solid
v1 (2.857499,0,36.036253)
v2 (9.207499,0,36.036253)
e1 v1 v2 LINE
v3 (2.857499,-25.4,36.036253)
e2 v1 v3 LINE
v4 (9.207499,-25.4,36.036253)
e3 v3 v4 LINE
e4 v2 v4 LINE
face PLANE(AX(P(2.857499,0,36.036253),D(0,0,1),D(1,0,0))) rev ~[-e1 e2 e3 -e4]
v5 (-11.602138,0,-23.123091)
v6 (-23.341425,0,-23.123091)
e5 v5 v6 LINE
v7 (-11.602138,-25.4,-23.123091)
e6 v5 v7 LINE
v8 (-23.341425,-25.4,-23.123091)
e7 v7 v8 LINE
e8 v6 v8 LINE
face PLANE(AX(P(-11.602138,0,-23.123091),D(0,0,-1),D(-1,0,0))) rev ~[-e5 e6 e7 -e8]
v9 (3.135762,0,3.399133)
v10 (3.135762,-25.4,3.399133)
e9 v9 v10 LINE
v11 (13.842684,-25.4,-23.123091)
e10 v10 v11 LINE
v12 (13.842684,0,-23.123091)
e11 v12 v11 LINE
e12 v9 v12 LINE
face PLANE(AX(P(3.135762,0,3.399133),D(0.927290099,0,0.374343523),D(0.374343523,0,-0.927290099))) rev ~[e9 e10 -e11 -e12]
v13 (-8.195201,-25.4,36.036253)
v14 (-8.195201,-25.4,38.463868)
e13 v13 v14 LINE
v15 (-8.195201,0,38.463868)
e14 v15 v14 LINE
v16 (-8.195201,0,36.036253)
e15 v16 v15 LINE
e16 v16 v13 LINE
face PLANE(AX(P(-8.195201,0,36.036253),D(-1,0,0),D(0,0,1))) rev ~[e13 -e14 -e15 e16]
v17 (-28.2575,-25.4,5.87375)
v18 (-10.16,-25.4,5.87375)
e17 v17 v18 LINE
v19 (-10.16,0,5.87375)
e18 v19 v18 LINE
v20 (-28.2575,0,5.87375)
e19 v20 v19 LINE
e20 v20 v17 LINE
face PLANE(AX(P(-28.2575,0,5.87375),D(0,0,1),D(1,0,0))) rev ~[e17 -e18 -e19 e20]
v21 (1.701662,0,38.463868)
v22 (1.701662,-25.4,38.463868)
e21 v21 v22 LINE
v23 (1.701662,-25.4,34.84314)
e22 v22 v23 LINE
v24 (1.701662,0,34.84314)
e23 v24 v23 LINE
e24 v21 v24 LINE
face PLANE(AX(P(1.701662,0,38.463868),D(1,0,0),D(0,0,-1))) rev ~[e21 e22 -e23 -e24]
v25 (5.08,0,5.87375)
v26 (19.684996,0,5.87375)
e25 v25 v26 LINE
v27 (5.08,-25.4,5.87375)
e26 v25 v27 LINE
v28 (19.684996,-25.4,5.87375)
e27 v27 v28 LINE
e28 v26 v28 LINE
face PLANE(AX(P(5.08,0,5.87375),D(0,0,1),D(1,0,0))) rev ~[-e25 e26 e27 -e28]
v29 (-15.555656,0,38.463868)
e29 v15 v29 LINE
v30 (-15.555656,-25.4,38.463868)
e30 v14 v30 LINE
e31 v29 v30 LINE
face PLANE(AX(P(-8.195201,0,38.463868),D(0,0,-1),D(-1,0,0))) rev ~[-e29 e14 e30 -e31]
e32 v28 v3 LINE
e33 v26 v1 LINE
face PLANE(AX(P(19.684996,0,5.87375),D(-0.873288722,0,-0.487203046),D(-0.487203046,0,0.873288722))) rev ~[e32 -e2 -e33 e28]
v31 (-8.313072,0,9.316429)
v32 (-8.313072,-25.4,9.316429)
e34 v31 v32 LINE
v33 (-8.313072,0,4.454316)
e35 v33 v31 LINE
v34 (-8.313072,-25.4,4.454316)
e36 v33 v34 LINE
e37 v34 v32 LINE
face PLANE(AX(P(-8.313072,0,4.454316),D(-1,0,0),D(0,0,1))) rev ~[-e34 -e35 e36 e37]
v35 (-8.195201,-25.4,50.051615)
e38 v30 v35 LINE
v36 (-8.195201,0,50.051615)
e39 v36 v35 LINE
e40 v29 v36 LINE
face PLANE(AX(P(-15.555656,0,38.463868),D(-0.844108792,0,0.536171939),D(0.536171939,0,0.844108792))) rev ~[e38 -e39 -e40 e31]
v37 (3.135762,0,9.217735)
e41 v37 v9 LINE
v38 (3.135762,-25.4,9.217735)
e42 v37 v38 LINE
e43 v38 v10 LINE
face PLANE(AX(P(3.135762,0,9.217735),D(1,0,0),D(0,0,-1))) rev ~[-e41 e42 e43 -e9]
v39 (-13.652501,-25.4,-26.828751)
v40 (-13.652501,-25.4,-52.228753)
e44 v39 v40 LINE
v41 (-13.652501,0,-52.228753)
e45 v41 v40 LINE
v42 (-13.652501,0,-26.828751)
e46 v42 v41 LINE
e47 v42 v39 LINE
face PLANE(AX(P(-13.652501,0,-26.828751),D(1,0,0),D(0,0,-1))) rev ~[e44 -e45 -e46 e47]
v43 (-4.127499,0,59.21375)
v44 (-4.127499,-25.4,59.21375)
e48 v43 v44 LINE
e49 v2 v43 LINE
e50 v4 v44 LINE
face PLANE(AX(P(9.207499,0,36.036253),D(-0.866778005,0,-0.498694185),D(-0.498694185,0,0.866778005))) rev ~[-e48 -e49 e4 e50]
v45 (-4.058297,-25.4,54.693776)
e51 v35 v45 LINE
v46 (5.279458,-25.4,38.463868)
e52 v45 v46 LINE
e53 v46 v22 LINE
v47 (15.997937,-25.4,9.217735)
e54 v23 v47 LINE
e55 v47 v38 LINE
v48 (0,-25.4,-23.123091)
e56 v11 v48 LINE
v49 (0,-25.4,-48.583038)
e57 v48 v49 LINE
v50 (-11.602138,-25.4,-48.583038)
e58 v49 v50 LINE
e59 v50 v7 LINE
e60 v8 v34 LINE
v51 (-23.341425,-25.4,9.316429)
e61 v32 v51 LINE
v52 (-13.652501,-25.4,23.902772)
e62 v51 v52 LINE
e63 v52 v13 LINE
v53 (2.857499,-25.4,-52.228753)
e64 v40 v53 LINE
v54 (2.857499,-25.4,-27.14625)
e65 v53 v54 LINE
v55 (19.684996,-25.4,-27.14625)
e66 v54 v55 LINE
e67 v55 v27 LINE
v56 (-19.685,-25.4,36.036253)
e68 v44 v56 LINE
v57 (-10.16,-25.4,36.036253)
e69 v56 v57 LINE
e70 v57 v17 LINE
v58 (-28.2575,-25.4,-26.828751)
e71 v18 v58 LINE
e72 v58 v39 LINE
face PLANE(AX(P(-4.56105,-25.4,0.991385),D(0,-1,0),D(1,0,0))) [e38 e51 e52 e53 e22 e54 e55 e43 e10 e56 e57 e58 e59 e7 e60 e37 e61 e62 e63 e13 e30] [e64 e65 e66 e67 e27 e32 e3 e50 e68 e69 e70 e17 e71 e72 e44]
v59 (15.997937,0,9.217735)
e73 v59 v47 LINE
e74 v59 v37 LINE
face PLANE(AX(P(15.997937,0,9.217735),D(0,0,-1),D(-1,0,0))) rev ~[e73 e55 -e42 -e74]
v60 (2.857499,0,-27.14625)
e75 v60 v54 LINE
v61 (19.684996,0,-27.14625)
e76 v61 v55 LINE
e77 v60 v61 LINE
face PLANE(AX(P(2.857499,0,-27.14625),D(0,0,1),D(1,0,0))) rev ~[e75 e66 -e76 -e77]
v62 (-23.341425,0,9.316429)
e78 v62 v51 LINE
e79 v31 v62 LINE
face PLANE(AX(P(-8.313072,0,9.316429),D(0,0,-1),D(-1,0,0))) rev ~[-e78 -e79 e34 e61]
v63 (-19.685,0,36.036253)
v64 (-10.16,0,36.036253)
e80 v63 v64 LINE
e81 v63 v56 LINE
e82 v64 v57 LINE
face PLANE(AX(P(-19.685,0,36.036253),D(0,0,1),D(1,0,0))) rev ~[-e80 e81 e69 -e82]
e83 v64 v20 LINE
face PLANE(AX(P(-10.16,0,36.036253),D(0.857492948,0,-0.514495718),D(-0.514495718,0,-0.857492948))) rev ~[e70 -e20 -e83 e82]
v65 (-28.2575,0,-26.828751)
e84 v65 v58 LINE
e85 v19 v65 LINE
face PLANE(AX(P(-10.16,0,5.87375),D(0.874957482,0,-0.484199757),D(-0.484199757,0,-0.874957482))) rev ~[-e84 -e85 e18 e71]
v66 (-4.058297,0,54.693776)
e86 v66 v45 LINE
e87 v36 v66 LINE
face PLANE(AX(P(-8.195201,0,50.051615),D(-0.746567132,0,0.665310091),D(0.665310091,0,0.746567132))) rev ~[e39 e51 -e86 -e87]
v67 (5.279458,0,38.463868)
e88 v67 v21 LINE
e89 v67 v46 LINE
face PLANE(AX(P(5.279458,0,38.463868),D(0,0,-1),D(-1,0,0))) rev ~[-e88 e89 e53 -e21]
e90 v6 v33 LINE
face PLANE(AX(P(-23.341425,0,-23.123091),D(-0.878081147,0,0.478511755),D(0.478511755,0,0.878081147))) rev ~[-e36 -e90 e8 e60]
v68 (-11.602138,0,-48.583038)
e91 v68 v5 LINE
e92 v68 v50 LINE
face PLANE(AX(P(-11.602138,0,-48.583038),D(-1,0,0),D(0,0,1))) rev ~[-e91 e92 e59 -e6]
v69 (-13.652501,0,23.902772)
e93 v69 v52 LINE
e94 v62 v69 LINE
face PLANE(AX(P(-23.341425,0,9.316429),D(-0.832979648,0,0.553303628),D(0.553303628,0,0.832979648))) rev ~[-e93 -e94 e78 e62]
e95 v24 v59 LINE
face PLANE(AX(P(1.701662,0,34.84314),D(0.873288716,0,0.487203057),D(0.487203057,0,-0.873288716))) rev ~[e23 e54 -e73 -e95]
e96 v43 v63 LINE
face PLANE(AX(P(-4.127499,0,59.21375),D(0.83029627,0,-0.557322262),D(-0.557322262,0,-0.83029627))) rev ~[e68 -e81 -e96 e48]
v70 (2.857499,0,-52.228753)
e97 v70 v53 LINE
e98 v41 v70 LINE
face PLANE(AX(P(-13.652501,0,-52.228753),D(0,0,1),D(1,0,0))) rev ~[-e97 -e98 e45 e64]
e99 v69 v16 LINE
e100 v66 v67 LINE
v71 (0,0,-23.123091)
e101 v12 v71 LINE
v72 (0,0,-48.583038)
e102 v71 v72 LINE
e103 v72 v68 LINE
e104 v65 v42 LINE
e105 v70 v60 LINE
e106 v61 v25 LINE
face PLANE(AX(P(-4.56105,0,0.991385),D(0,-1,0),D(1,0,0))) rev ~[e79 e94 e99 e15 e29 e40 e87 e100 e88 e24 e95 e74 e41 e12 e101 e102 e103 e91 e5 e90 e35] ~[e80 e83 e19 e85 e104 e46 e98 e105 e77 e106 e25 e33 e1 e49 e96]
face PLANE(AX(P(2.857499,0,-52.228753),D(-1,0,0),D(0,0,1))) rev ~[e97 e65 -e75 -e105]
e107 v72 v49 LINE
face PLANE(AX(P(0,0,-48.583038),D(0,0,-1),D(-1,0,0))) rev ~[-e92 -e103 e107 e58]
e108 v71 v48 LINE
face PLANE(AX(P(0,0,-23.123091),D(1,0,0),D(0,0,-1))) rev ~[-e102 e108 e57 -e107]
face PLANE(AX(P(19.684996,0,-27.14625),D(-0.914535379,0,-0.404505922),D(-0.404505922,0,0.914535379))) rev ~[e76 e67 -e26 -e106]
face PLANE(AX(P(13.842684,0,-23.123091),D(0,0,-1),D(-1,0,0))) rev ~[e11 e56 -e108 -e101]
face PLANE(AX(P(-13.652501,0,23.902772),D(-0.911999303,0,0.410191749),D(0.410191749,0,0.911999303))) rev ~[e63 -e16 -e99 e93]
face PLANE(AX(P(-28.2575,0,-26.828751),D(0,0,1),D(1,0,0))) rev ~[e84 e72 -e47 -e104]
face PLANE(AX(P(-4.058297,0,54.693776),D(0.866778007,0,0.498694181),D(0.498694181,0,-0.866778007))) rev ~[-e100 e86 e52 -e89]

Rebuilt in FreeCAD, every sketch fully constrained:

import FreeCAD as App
import Part
import Sketcher
Q = App.Units.Quantity


def add_polygon(sketch, points):
    """Adds a closed chain of lines whose ends are joined by coincident constraints."""
    first, n = sketch.GeometryCount, len(points)
    for a, b in zip(points, points[1:] + points[:1]):
        sketch.addGeometry(Part.LineSegment(App.Vector(*a, 0), App.Vector(*b, 0)), False)
    for i in range(n):
        sketch.addConstraint(Sketcher.Constraint("Coincident", first + i, 2, first + (i + 1) % n, 1))

doc = App.newDocument("Part")
body = doc.addObject("PartDesign::Body", "Body")

# Sketch on XZ plane
sketch1 = body.newObject("Sketcher::SketchObject", "Sketch")
sketch1.AttachmentSupport = (doc.getObject("XZ_Plane"), [""])
sketch1.MapMode = "FlatFace"
add_polygon(sketch1, [(-28.3, -26.8), (-13.7, -26.8), (-13.7, -52.2), (2.9, -52.2), (2.9, -27.1), (19.7, -27.1), (5.1, 5.9), (19.7, 5.9), (2.9, 36), (9.2, 36), (-4.1, 59.2), (-19.7, 36), (-10.2, 36), (-28.3, 5.9), (-10.2, 5.9)])  # lines 0-14
add_polygon(sketch1, [(-8.3, 9.3), (-23.3, 9.3), (-13.7, 23.9), (-8.2, 36), (-8.2, 38.5), (-15.6, 38.5), (-8.2, 50.1), (-4.1, 54.7), (5.3, 38.5), (1.7, 38.5), (1.7, 34.8), (16, 9.2), (3.1, 9.2), (3.1, 3.4), (13.8, -23.1), (0, -23.1), (0, -48.6), (-11.6, -48.6), (-11.6, -23.1), (-23.3, -23.1), (-8.3, 4.5)])  # lines 15-35
sketch1.addConstraint([
    Sketcher.Constraint("Horizontal", 0),
    Sketcher.Constraint("Vertical", 1),
    Sketcher.Constraint("Horizontal", 2),
    Sketcher.Constraint("Vertical", 3),
    Sketcher.Constraint("Horizontal", 4),
    Sketcher.Constraint("Horizontal", 6),
    Sketcher.Constraint("Horizontal", 8),
    Sketcher.Constraint("Horizontal", 11),
    Sketcher.Constraint("Horizontal", 13),
    Sketcher.Constraint("Horizontal", 15),
    Sketcher.Constraint("Vertical", 18),
    Sketcher.Constraint("Horizontal", 19),
    Sketcher.Constraint("Horizontal", 23),
    Sketcher.Constraint("Vertical", 24),
    Sketcher.Constraint("Horizontal", 26),
    Sketcher.Constraint("Vertical", 27),
    Sketcher.Constraint("Horizontal", 29),
    Sketcher.Constraint("Vertical", 30),
    Sketcher.Constraint("Horizontal", 31),
    Sketcher.Constraint("Vertical", 32),
    Sketcher.Constraint("Horizontal", 33),
    Sketcher.Constraint("Vertical", 35),
    Sketcher.Constraint("PointOnObject", 29, 2, -2),
    Sketcher.Constraint("Parallel", 9, 22),
    Sketcher.Constraint("Parallel", 7, 25),
    Sketcher.Constraint("Horizontal", 8, 2, 10, 2),
    Sketcher.Constraint("Horizontal", 6, 2, 12, 2),
    Sketcher.Constraint("Horizontal", 11, 2, 17, 2),
    Sketcher.Constraint("Horizontal", 19, 2, 22, 2),
    Sketcher.Constraint("Horizontal", 29, 2, 32, 2),
    Sketcher.Constraint("Vertical", 4, 2, 6, 2),
    Sketcher.Constraint("Vertical", 3, 2, 7, 2),
    Sketcher.Constraint("Vertical", 11, 2, 13, 2),
    Sketcher.Constraint("Vertical", 12, 2, 14, 2),
    Sketcher.Constraint("Vertical", 1, 2, 16, 2),
    Sketcher.Constraint("Vertical", 18, 2, 20, 2),
    Sketcher.Constraint("Vertical", 15, 2, 33, 2),
    Sketcher.Constraint("DistanceY", 1, 2, 1, 1, Q("1.0000001 in")),
    Sketcher.Constraint("DistanceX", 2, 1, 2, 2, Q("0.65 in")),
    Sketcher.Constraint("DistanceX", 8, 1, 8, 2, Q("0.25 in")),
    Sketcher.Constraint("DistanceX", -1, 1, 5, 2, Q("0.2 in")),
    Sketcher.Constraint("DistanceX", 11, 2, -1, 1, Q("0.4 in")),
    Sketcher.Constraint("DistanceY", 3, 2, 5, 2, Q("1.3 in")),
    Sketcher.Constraint("DistanceY", 5, 2, 9, 2, Q("2.1 in")),
    Sketcher.Constraint("DistanceX", 0, 1, 0, 2, Q("0.575 in")),
    Sketcher.Constraint("DistanceX", 6, 1, 6, 2, Q("0.5749998 in")),
    Sketcher.Constraint("DistanceX", 11, 1, 11, 2, Q("0.375 in")),
    Sketcher.Constraint("DistanceX", 4, 1, 4, 2, Q("0.6624999 in")),
    Sketcher.Constraint("DistanceY", 3, 1, 3, 2, Q("0.9875001 in")),
    Sketcher.Constraint("DistanceY", 5, 2, 7, 2, Q("1.1875001 in")),
    Sketcher.Constraint("DistanceX", 9, 2, 7, 2, Q("0.2749999 in")),
    Sketcher.Constraint("DistanceY", 27, 2, 27, 1, Q("5.818602 mm")),
    Sketcher.Constraint("DistanceX", 17, 2, -1, 1, Q("8.195201 mm")),
    Sketcher.Constraint("Distance", 20, Q("13.727789 mm")),
    Sketcher.Constraint("Distance", 21, Q("6.218009 mm")),
    Sketcher.Constraint("Distance", 22, Q("18.724411 mm")),
    Sketcher.Constraint("DistanceX", 15, 2, 15, 1, Q("15.028353 mm")),
    Sketcher.Constraint("DistanceX", 19, 2, 19, 1, Q("7.360455 mm")),
    Sketcher.Constraint("DistanceX", 23, 2, 23, 1, Q("3.577796 mm")),
    Sketcher.Constraint("DistanceX", 26, 2, 26, 1, Q("12.862175 mm")),
    Sketcher.Constraint("DistanceX", 29, 2, 29, 1, Q("13.842684 mm")),
    Sketcher.Constraint("DistanceX", 31, 2, 31, 1, Q("11.602138 mm")),
    Sketcher.Constraint("DistanceX", 33, 2, 33, 1, Q("11.739287 mm")),
    Sketcher.Constraint("DistanceY", 18, 1, 18, 2, Q("2.427615 mm")),
    Sketcher.Constraint("DistanceY", 24, 2, 24, 1, Q("3.620728 mm")),
    Sketcher.Constraint("DistanceY", 30, 2, 30, 1, Q("25.459947 mm")),
    Sketcher.Constraint("DistanceY", 35, 1, 35, 2, Q("4.862113 mm")),
    Sketcher.Constraint("DistanceY", 0, 2, -1, 1, Q("26.828751 mm")),
    Sketcher.Constraint("DistanceY", -1, 1, 15, 2, Q("9.316429 mm")),
    Sketcher.Constraint("DistanceY", -1, 1, 16, 2, Q("23.902772 mm")),
    Sketcher.Constraint("DistanceY", 28, 2, -1, 1, Q("23.123091 mm")),
    Sketcher.Constraint("DistanceX", 25, 2, 6, 2, Q("3.687059 mm")),
])
pad1 = body.newObject("PartDesign::Pad", "Pad")
pad1.Profile = sketch1
pad1.Length = Q("1 in")

doc.recompute()
